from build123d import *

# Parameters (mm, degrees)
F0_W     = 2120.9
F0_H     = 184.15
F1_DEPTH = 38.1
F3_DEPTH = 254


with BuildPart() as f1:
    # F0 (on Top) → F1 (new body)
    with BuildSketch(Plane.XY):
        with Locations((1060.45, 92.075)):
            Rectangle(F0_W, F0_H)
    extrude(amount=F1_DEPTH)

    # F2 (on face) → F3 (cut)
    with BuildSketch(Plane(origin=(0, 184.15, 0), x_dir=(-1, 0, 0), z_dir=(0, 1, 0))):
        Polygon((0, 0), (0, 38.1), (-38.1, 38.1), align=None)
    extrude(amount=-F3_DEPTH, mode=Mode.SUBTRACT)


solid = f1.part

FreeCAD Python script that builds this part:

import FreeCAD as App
import Part
import Sketcher
from FreeCAD import Vector
Q = App.Units.Quantity


def add_polygon(sketch, points):
    """Adds a closed chain of lines whose ends are joined by coincident constraints."""
    first, n = sketch.GeometryCount, len(points)
    for a, b in zip(points, points[1:] + points[:1]):
        sketch.addGeometry(Part.LineSegment(App.Vector(*a, 0), App.Vector(*b, 0)), False)
    for i in range(n):
        sketch.addConstraint(Sketcher.Constraint("Coincident", first + i, 2, first + (i + 1) % n, 1))

doc = App.newDocument("Part")
params = doc.addObject("Spreadsheet::Sheet", "Params")
for row, (alias, value) in enumerate([
    ("sketch1_width", "83.5 in"),
    ("sketch1_height", "7.25 in"),
    ("pad1_length", "1.5 in"),
    ("sketch2_width", "1.5 in"),
    ("pocket1_length", "10 in"),
], start=1):
    params.set(f"A{row}", alias)
    params.set(f"B{row}", "=" + value)
    params.setAlias(f"B{row}", alias)

body = doc.addObject("PartDesign::Body", "Body")

sketch1 = body.newObject("Sketcher::SketchObject", "Sketch")
sketch1.AttachmentSupport = (doc.getObject("XY_Plane"), [""])
sketch1.MapMode = "FlatFace"
add_polygon(sketch1, [(0, 184.15), (0, 0), (2120.9, 0), (2120.9, 184.15)])
sketch1.addConstraint([
    Sketcher.Constraint("Vertical", 0),
    Sketcher.Constraint("Horizontal", 1),
    Sketcher.Constraint("Vertical", 2),
    Sketcher.Constraint("Horizontal", 3),
    Sketcher.Constraint("Coincident", 0, 2, -1, 1),
    Sketcher.Constraint("DistanceX", 1, 1, 1, 2, Q("83.5 in")),
    Sketcher.Constraint("DistanceY", 0, 2, 0, 1, Q("7.25 in")),
])
sketch1.setExpression("Constraints[9]", "Params.sketch1_width")
sketch1.setExpression("Constraints[10]", "Params.sketch1_height")
pad1 = body.newObject("PartDesign::Pad", "Pad")
pad1.Profile = sketch1
pad1.setExpression("Length", "Params.pad1_length")

sketch2 = body.newObject("Sketcher::SketchObject", "Sketch001")
sketch2.AttachmentSupport = (doc.getObject("XZ_Plane"), [""])
sketch2.MapMode = "FlatFace"
sketch2.AttachmentOffset = App.Placement(Vector(0, 0, -7.25 * 25.4), App.Rotation())
add_polygon(sketch2, [(0, 0), (0, 38.1), (38.1, 38.1)])
sketch2.addConstraint([
    Sketcher.Constraint("Vertical", 0),
    Sketcher.Constraint("Horizontal", 1),
    Sketcher.Constraint("Coincident", 2, 2, -1, 1),
    Sketcher.Constraint("Equal", 1, 0),
    Sketcher.Constraint("DistanceX", 1, 1, 1, 2, Q("1.5 in")),
])
sketch2.setExpression("Constraints[7]", "Params.sketch2_width")
pocket1 = body.newObject("PartDesign::Pocket", "Pocket")
pocket1.Profile = sketch2
pocket1.setExpression("Length", "Params.pocket1_length")
pocket1.Reversed = True

doc.recompute()
